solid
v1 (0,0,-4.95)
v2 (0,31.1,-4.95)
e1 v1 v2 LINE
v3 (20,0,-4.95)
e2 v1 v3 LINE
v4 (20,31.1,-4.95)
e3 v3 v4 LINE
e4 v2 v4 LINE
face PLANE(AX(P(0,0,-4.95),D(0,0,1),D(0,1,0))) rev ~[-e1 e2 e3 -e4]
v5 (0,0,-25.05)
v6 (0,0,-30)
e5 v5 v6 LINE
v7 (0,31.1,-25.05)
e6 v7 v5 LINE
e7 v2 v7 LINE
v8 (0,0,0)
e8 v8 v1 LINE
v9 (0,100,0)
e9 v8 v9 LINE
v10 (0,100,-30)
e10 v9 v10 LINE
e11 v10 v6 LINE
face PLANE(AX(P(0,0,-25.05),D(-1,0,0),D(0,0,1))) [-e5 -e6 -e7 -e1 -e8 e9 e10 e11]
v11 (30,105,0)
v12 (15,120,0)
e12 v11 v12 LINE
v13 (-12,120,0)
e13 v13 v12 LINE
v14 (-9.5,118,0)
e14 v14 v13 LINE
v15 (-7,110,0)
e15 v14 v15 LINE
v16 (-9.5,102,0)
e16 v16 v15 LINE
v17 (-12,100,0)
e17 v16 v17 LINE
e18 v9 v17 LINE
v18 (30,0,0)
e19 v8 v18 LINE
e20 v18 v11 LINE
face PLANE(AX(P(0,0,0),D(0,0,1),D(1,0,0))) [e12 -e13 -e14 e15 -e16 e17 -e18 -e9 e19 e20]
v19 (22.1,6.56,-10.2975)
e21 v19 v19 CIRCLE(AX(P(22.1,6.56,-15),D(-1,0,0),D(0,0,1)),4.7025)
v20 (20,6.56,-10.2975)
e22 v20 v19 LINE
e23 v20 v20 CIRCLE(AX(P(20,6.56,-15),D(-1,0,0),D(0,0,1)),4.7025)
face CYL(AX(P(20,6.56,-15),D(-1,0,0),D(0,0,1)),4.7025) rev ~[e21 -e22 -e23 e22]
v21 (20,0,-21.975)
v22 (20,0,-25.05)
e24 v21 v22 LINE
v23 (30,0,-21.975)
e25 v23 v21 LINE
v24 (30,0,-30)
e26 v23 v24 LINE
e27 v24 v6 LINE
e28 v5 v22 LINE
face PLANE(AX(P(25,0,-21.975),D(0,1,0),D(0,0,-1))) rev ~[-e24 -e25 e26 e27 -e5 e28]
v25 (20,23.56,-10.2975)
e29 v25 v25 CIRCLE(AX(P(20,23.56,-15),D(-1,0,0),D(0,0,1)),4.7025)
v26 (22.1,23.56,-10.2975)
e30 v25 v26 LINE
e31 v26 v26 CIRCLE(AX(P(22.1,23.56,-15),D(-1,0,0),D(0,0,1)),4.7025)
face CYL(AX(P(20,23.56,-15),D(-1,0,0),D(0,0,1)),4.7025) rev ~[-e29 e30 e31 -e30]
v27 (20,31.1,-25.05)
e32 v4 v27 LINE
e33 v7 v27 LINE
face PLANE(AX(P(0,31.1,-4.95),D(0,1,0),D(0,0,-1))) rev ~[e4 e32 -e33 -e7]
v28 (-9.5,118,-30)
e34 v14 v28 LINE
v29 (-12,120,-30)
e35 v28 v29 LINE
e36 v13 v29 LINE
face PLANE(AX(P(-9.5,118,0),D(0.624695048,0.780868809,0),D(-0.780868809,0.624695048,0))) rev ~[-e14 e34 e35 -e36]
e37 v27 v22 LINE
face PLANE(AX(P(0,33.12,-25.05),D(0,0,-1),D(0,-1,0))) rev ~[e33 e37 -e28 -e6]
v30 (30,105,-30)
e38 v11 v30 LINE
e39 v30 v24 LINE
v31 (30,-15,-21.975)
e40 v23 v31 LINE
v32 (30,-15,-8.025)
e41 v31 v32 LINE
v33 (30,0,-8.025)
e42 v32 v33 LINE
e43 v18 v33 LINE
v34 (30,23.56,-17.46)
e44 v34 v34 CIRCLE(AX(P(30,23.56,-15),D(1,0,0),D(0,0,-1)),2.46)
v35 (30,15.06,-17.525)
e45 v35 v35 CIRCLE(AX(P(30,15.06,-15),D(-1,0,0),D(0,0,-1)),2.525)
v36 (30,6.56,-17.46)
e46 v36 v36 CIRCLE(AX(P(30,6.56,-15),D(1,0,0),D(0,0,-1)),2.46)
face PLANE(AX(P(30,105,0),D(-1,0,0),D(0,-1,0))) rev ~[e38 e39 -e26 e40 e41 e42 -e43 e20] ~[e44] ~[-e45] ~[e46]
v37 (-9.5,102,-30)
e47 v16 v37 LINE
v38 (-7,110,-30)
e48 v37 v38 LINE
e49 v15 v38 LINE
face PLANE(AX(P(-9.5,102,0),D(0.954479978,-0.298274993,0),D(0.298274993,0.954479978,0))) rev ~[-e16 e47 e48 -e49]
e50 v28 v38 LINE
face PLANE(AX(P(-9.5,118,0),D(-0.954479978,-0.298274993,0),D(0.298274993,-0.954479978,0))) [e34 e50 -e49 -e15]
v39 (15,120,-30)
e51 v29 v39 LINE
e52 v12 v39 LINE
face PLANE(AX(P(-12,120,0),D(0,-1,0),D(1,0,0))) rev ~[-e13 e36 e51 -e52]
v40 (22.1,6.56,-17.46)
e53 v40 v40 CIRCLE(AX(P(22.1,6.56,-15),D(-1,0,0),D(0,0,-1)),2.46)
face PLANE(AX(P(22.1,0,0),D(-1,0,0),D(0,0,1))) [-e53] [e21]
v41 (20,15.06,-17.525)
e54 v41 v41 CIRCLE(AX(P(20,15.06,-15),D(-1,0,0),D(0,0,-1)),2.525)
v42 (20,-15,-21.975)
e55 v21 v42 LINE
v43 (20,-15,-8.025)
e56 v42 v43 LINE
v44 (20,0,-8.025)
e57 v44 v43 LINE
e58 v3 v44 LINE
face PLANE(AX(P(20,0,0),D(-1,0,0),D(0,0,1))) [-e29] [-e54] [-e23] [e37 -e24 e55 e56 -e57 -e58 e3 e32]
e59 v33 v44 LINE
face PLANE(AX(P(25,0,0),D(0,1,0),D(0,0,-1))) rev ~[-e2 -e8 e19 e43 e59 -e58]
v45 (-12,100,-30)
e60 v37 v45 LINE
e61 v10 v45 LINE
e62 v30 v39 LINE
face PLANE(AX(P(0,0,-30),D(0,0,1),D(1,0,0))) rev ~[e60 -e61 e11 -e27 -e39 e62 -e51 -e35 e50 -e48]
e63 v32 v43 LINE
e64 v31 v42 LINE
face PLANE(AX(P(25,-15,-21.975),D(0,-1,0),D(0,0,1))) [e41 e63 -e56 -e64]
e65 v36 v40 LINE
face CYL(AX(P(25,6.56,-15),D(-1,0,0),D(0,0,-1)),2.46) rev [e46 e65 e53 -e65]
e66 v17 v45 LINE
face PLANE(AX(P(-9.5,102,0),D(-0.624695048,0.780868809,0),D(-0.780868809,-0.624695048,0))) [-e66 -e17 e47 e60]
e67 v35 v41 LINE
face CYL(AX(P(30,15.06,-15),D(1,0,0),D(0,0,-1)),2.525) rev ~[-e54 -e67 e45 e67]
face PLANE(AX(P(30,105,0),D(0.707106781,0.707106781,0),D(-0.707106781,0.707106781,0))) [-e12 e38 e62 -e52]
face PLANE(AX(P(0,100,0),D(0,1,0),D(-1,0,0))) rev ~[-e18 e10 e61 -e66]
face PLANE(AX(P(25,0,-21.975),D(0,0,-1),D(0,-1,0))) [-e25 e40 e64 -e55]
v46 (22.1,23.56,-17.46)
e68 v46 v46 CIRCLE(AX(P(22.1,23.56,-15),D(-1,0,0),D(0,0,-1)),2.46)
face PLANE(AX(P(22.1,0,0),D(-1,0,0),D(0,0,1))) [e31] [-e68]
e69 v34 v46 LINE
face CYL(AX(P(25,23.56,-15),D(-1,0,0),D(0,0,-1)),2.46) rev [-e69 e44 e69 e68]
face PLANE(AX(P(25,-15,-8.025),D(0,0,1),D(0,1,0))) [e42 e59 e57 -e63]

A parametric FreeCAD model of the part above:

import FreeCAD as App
import Part
import Sketcher


def add_polygon(sketch, points):
    """Adds a closed chain of lines whose ends are joined by coincident constraints."""
    first, n = sketch.GeometryCount, len(points)
    for a, b in zip(points, points[1:] + points[:1]):
        sketch.addGeometry(Part.LineSegment(App.Vector(*a, 0), App.Vector(*b, 0)), False)
    for i in range(n):
        sketch.addConstraint(Sketcher.Constraint("Coincident", first + i, 2, first + (i + 1) % n, 1))

doc = App.newDocument("Part")
body = doc.addObject("PartDesign::Body", "Body")

sketch1 = body.newObject("Sketcher::SketchObject", "Sketch")
sketch1.AttachmentSupport = (doc.getObject("XY_Plane"), [""])
sketch1.MapMode = "FlatFace"
add_polygon(sketch1, [(0, 40), (0, 0), (25, 0), (25, 40)])
sketch1.addConstraint(Sketcher.Constraint("Vertical", 0))
sketch1.addConstraint(Sketcher.Constraint("Horizontal", 1))
sketch1.addConstraint(Sketcher.Constraint("Vertical", 2))
sketch1.addConstraint(Sketcher.Constraint("Horizontal", 3))
sketch1.addConstraint(Sketcher.Constraint("Coincident", 0, 2, -1, 1))
sketch1.addConstraint(Sketcher.Constraint("DistanceX", 1, 1, 1, 2, 25.0))
sketch1.addConstraint(Sketcher.Constraint("DistanceY", 0, 2, 0, 1, 40.0))
pad1 = body.newObject("PartDesign::Pad", "Pad")
pad1.Profile = sketch1
pad1.Length = 30
pad1.Reversed = True

sketch2 = body.newObject("Sketcher::SketchObject", "Sketch001")
sketch2.AttachmentSupport = (doc.getObject("YZ_Plane"), [""])
sketch2.MapMode = "FlatFace"
sketch2.AttachmentOffset = App.Placement(App.Vector(0, 0, 25), App.Rotation())
sketch2.addGeometry(Part.Circle(App.Vector(6.6, -15, 0), App.Vector(0, 0, 1), 2.5), False)
sketch2.addConstraint(Sketcher.Constraint("Diameter", 0, 4.92))
sketch2.addConstraint(Sketcher.Constraint("DistanceY", 0, 3, -1, 1, 15.0))
sketch2.addConstraint(Sketcher.Constraint("DistanceX", -1, 1, 0, 3, 6.56))
pocket1 = body.newObject("PartDesign::Pocket", "Pocket")
pocket1.Profile = sketch2
pocket1.Length = 30

sketch3 = body.newObject("Sketcher::SketchObject", "Sketch002")
sketch3.AttachmentSupport = (doc.getObject("YZ_Plane"), [""])
sketch3.MapMode = "FlatFace"
add_polygon(sketch3, [(0, -25), (0, -5), (33, -5), (33, -25)])
sketch3.addConstraint(Sketcher.Constraint("Vertical", 0))
sketch3.addConstraint(Sketcher.Constraint("Horizontal", 1))
sketch3.addConstraint(Sketcher.Constraint("Vertical", 2))
sketch3.addConstraint(Sketcher.Constraint("Horizontal", 3))
sketch3.addConstraint(Sketcher.Constraint("PointOnObject", 0, 2, -2))
sketch3.addConstraint(Sketcher.Constraint("DistanceY", 0, 1, 0, 2, 20.1))
sketch3.addConstraint(Sketcher.Constraint("DistanceX", 1, 1, 1, 2, 33.12))
sketch3.addConstraint(Sketcher.Constraint("DistanceY", 0, 2, -1, 1, 4.95))
pocket2 = body.newObject("PartDesign::Pocket", "Pocket001")
pocket2.Profile = sketch3
pocket2.Length = 20
pocket2.Reversed = True

sketch4 = body.newObject("Sketcher::SketchObject", "Sketch003")
sketch4.AttachmentSupport = (doc.getObject("XZ_Plane"), [""])
sketch4.MapMode = "FlatFace"
add_polygon(sketch4, [(25, -8), (20, -8), (20, -22), (25, -22)])
sketch4.addConstraint(Sketcher.Constraint("Horizontal", 0))
sketch4.addConstraint(Sketcher.Constraint("Vertical", 1))
sketch4.addConstraint(Sketcher.Constraint("Horizontal", 2))
sketch4.addConstraint(Sketcher.Constraint("Vertical", 3))
sketch4.addConstraint(Sketcher.Constraint("DistanceY", 1, 2, 1, 1, 13.95))
sketch4.addConstraint(Sketcher.Constraint("DistanceX", 0, 2, 0, 1, 5.0))
sketch4.addConstraint(Sketcher.Constraint("DistanceX", -1, 1, 0, 2, 20.0))
sketch4.addConstraint(Sketcher.Constraint("DistanceY", 0, 2, -1, 1, 8.025))
pad2 = body.newObject("PartDesign::Pad", "Pad001")
pad2.Profile = sketch4
pad2.Length = 15

sketch5 = body.newObject("Sketcher::SketchObject", "Sketch004")
sketch5.AttachmentSupport = (doc.getObject("YZ_Plane"), [""])
sketch5.MapMode = "FlatFace"
sketch5.AttachmentOffset = App.Placement(App.Vector(0, 0, 20), App.Rotation())
sketch5.addGeometry(Part.Circle(App.Vector(6.6, -15, 0), App.Vector(0, 0, 1), 4.7), False)
sketch5.addGeometry(Part.Circle(App.Vector(6.6, -15, 0), App.Vector(0, 0, 1), 2.5), False)
sketch5.addConstraint(Sketcher.Constraint("Coincident", 1, 3, 0, 3))
sketch5.addConstraint(Sketcher.Constraint("Diameter", 0, 9.405))
sketch5.addConstraint(Sketcher.Constraint("Diameter", 1, 4.92))
sketch5.addConstraint(Sketcher.Constraint("DistanceY", 0, 3, -1, 1, 15.0))
sketch5.addConstraint(Sketcher.Constraint("DistanceX", -1, 1, 0, 3, 6.56))
pocket3 = body.newObject("PartDesign::Pocket", "Pocket002")
pocket3.Profile = sketch5
pocket3.Length = 2.1
pocket3.Reversed = True

sketch6 = body.newObject("Sketcher::SketchObject", "Sketch005")
sketch6.AttachmentSupport = (doc.getObject("YZ_Plane"), [""])
sketch6.MapMode = "FlatFace"
sketch6.AttachmentOffset = App.Placement(App.Vector(0, 0, 25), App.Rotation())
sketch6.addGeometry(Part.Circle(App.Vector(23.6, -15, 0), App.Vector(0, 0, 1), 2.5), False)
sketch6.addConstraint(Sketcher.Constraint("Diameter", 0, 4.92))
sketch6.addConstraint(Sketcher.Constraint("DistanceY", 0, 3, -1, 1, 15.0))
sketch6.addConstraint(Sketcher.Constraint("DistanceX", -1, 1, 0, 3, 23.56))
pocket4 = body.newObject("PartDesign::Pocket", "Pocket003")
pocket4.Profile = sketch6
pocket4.Length = 10

sketch7 = body.newObject("Sketcher::SketchObject", "Sketch006")
sketch7.AttachmentSupport = (doc.getObject("YZ_Plane"), [""])
sketch7.MapMode = "FlatFace"
sketch7.AttachmentOffset = App.Placement(App.Vector(0, 0, 20), App.Rotation())
sketch7.addGeometry(Part.Circle(App.Vector(23.6, -15, 0), App.Vector(0, 0, 1), 4.7), False)
sketch7.addGeometry(Part.Circle(App.Vector(23.6, -15, 0), App.Vector(0, 0, 1), 2.5), False)
sketch7.addConstraint(Sketcher.Constraint("Coincident", 1, 3, 0, 3))
sketch7.addConstraint(Sketcher.Constraint("Diameter", 0, 9.405))
sketch7.addConstraint(Sketcher.Constraint("Diameter", 1, 4.92))
sketch7.addConstraint(Sketcher.Constraint("DistanceY", 0, 3, -1, 1, 15.0))
sketch7.addConstraint(Sketcher.Constraint("DistanceX", -1, 1, 0, 3, 23.56))
pocket5 = body.newObject("PartDesign::Pocket", "Pocket004")
pocket5.Profile = sketch7
pocket5.Length = 2.1
pocket5.Reversed = True

sketch8 = body.newObject("Sketcher::SketchObject", "Sketch007")
sketch8.AttachmentSupport = (doc.getObject("YZ_Plane"), [""])
sketch8.MapMode = "FlatFace"
sketch8.AttachmentOffset = App.Placement(App.Vector(0, 0, 25), App.Rotation())
add_polygon(sketch8, [(0, -30), (40, -30), (40, 0), (0, 0), (0, -8), (-15, -8), (-15, -22), (0, -22)])
sketch8.addGeometry(Part.Circle(App.Vector(6.6, -15, 0), App.Vector(0, 0, 1), 2.5), False)
sketch8.addGeometry(Part.Circle(App.Vector(23.6, -15, 0), App.Vector(0, 0, 1), 2.5), False)
sketch8.addConstraint(Sketcher.Constraint("Horizontal", 0))
sketch8.addConstraint(Sketcher.Constraint("Vertical", 1))
sketch8.addConstraint(Sketcher.Constraint("Horizontal", 2))
sketch8.addConstraint(Sketcher.Constraint("Vertical", 3))
sketch8.addConstraint(Sketcher.Constraint("Horizontal", 4))
sketch8.addConstraint(Sketcher.Constraint("Vertical", 5))
sketch8.addConstraint(Sketcher.Constraint("Horizontal", 6))
sketch8.addConstraint(Sketcher.Constraint("Vertical", 7))
sketch8.addConstraint(Sketcher.Constraint("Coincident", 2, 2, -1, 1))
sketch8.addConstraint(Sketcher.Constraint("Equal", 8, 9))
sketch8.addConstraint(Sketcher.Constraint("PointOnObject", 6, 2, -2))
sketch8.addConstraint(Sketcher.Constraint("Horizontal", 8, 3, 9, 3))
sketch8.addConstraint(Sketcher.Constraint("Equal", 3, 7))
sketch8.addConstraint(Sketcher.Constraint("Diameter", 8, 4.92))
sketch8.addConstraint(Sketcher.Constraint("DistanceX", 0, 1, 0, 2, 40.0))
sketch8.addConstraint(Sketcher.Constraint("DistanceX", 4, 2, 4, 1, 15.0))
sketch8.addConstraint(Sketcher.Constraint("DistanceY", 1, 1, 1, 2, 30.0))
sketch8.addConstraint(Sketcher.Constraint("DistanceY", 8, 3, -1, 1, 15.0))
sketch8.addConstraint(Sketcher.Constraint("DistanceX", 8, 3, 9, 3, 17.0))
sketch8.addConstraint(Sketcher.Constraint("DistanceY", 5, 2, 5, 1, 13.95))
sketch8.addConstraint(Sketcher.Constraint("DistanceX", -1, 1, 8, 3, 6.56))
pad3 = body.newObject("PartDesign::Pad", "Pad002")
pad3.Profile = sketch8
pad3.Length = 5

sketch9 = body.newObject("Sketcher::SketchObject", "Sketch008")
sketch9.AttachmentSupport = (doc.getObject("XZ_Plane"), [""])
sketch9.MapMode = "FlatFace"
sketch9.AttachmentOffset = App.Placement(App.Vector(0, 0, -40), App.Rotation())
add_polygon(sketch9, [(30, -30), (0, -30), (0, 0), (30, 0)])
sketch9.addConstraint(Sketcher.Constraint("Horizontal", 0))
sketch9.addConstraint(Sketcher.Constraint("Vertical", 1))
sketch9.addConstraint(Sketcher.Constraint("Horizontal", 2))
sketch9.addConstraint(Sketcher.Constraint("Vertical", 3))
sketch9.addConstraint(Sketcher.Constraint("Coincident", 1, 2, -1, 1))
sketch9.addConstraint(Sketcher.Constraint("Equal", 2, 1))
sketch9.addConstraint(Sketcher.Constraint("DistanceX", 0, 2, 0, 1, 30.0))
pad4 = body.newObject("PartDesign::Pad", "Pad003")
pad4.Profile = sketch9
pad4.Length = 30
pad4.Reversed = True

sketch10 = body.newObject("Sketcher::SketchObject", "Sketch009")
sketch10.AttachmentSupport = (doc.getObject("YZ_Plane"), [""])
sketch10.MapMode = "FlatFace"
sketch10.AttachmentOffset = App.Placement(App.Vector(0, 0, 30), App.Rotation())
sketch10.addGeometry(Part.Circle(App.Vector(15.1, -15, 0), App.Vector(0, 0, 1), 2.5), False)
sketch10.addConstraint(Sketcher.Constraint("Diameter", 0, 5.05))
sketch10.addConstraint(Sketcher.Constraint("DistanceY", 0, 3, -1, 1, 15.0))
sketch10.addConstraint(Sketcher.Constraint("DistanceX", -1, 1, 0, 3, 15.06))
pocket6 = body.newObject("PartDesign::Pocket", "Pocket005")
pocket6.Profile = sketch10
pocket6.Length = 30

sketch11 = body.newObject("Sketcher::SketchObject", "Sketch010")
sketch11.AttachmentSupport = (doc.getObject("XY_Plane"), [""])
sketch11.MapMode = "FlatFace"
add_polygon(sketch11, [(0, 70), (30, 70), (30, 105), (15, 120), (-12, 120), (-9.5, 118), (-7, 110), (-9.5, 102), (-12, 100), (0, 100)])
sketch11.addConstraint(Sketcher.Constraint("Horizontal", 0))
sketch11.addConstraint(Sketcher.Constraint("Vertical", 1))
sketch11.addConstraint(Sketcher.Constraint("Horizontal", 3))
sketch11.addConstraint(Sketcher.Constraint("Horizontal", 8))
sketch11.addConstraint(Sketcher.Constraint("Vertical", 9))
sketch11.addConstraint(Sketcher.Constraint("PointOnObject", 8, 2, -2))
sketch11.addConstraint(Sketcher.Constraint("Vertical", 4, 2, 6, 2))
sketch11.addConstraint(Sketcher.Constraint("Vertical", 3, 2, 7, 2))
sketch11.addConstraint(Sketcher.Constraint("Equal", 0, 9))
sketch11.addConstraint(Sketcher.Constraint("Equal", 5, 6))
sketch11.addConstraint(Sketcher.Constraint("Equal", 4, 7))
sketch11.addConstraint(Sketcher.Constraint("DistanceX", 8, 1, 8, 2, 12.0))
sketch11.addConstraint(Sketcher.Constraint("DistanceY", 7, 2, 3, 2, 20.0))
sketch11.addConstraint(Sketcher.Constraint("DistanceX", 0, 1, 0, 2, 30.0))
sketch11.addConstraint(Sketcher.Constraint("DistanceX", 3, 2, 3, 1, 27.0))
sketch11.addConstraint(Sketcher.Constraint("DistanceY", 1, 1, 1, 2, 35.0))
sketch11.addConstraint(Sketcher.Constraint("DistanceY", -1, 1, 0, 2, 70.0))
sketch11.addConstraint(Sketcher.Constraint("DistanceY", -1, 1, 4, 2, 118.0))
sketch11.addConstraint(Sketcher.Constraint("DistanceX", 5, 2, -1, 1, 7.0))
sketch11.addConstraint(Sketcher.Constraint("DistanceX", 4, 2, -1, 1, 9.5))
pad5 = body.newObject("PartDesign::Pad", "Pad004")
pad5.Profile = sketch11
pad5.Length = 30
pad5.Reversed = True

sketch12 = body.newObject("Sketcher::SketchObject", "Sketch011")
sketch12.AttachmentSupport = (doc.getObject("YZ_Plane"), [""])
sketch12.MapMode = "FlatFace"
add_polygon(sketch12, [(33.1, -5), (33.1, -25.1), (31.1, -25.1), (31.1, -5)])
sketch12.addConstraint(Sketcher.Constraint("Vertical", 0))
sketch12.addConstraint(Sketcher.Constraint("Horizontal", 1))
sketch12.addConstraint(Sketcher.Constraint("Vertical", 2))
sketch12.addConstraint(Sketcher.Constraint("Horizontal", 3))
sketch12.addConstraint(Sketcher.Constraint("DistanceX", 1, 2, 1, 1, 2.02))
sketch12.addConstraint(Sketcher.Constraint("DistanceY", 0, 2, 0, 1, 20.1))
sketch12.addConstraint(Sketcher.Constraint("DistanceX", -1, 1, 1, 2, 31.1))
sketch12.addConstraint(Sketcher.Constraint("DistanceY", 0, 2, -1, 1, 25.05))
pad6 = body.newObject("PartDesign::Pad", "Pad005")
pad6.Profile = sketch12
pad6.Length = 20

doc.recompute()
